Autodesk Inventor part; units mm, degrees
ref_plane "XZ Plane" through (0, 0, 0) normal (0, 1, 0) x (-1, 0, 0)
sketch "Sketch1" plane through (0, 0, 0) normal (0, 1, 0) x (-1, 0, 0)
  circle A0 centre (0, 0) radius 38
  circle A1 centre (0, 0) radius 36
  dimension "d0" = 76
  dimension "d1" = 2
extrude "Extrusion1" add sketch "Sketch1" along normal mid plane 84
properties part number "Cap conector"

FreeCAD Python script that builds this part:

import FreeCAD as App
import Part
import Sketcher
from FreeCAD import Vector

doc = App.newDocument("Part")
body = doc.addObject("PartDesign::Body", "Body")

# Sketch on XZ plane
sketch1 = body.newObject("Sketcher::SketchObject", "Sketch")
sketch1.AttachmentSupport = (doc.getObject("XZ_Plane"), [""])
sketch1.MapMode = "FlatFace"
sketch1.addGeometry(Part.Circle(Vector(0, 0, 0), Vector(0, 0, 1), 38), False)
sketch1.addGeometry(Part.Circle(Vector(0, 0, 0), Vector(0, 0, 1), 36), False)
sketch1.addConstraint(Sketcher.Constraint("Coincident", 0, 3, -1, 1))
sketch1.addConstraint(Sketcher.Constraint("Coincident", 1, 3, -1, 1))
sketch1.addConstraint(Sketcher.Constraint("Diameter", 0, 76.0))
sketch1.addConstraint(Sketcher.Constraint("Diameter", 1, 72.0))
pad1 = body.newObject("PartDesign::Pad", "Pad")
pad1.Profile = sketch1
pad1.Length = 84
pad1.Midplane = True

doc.recompute()
